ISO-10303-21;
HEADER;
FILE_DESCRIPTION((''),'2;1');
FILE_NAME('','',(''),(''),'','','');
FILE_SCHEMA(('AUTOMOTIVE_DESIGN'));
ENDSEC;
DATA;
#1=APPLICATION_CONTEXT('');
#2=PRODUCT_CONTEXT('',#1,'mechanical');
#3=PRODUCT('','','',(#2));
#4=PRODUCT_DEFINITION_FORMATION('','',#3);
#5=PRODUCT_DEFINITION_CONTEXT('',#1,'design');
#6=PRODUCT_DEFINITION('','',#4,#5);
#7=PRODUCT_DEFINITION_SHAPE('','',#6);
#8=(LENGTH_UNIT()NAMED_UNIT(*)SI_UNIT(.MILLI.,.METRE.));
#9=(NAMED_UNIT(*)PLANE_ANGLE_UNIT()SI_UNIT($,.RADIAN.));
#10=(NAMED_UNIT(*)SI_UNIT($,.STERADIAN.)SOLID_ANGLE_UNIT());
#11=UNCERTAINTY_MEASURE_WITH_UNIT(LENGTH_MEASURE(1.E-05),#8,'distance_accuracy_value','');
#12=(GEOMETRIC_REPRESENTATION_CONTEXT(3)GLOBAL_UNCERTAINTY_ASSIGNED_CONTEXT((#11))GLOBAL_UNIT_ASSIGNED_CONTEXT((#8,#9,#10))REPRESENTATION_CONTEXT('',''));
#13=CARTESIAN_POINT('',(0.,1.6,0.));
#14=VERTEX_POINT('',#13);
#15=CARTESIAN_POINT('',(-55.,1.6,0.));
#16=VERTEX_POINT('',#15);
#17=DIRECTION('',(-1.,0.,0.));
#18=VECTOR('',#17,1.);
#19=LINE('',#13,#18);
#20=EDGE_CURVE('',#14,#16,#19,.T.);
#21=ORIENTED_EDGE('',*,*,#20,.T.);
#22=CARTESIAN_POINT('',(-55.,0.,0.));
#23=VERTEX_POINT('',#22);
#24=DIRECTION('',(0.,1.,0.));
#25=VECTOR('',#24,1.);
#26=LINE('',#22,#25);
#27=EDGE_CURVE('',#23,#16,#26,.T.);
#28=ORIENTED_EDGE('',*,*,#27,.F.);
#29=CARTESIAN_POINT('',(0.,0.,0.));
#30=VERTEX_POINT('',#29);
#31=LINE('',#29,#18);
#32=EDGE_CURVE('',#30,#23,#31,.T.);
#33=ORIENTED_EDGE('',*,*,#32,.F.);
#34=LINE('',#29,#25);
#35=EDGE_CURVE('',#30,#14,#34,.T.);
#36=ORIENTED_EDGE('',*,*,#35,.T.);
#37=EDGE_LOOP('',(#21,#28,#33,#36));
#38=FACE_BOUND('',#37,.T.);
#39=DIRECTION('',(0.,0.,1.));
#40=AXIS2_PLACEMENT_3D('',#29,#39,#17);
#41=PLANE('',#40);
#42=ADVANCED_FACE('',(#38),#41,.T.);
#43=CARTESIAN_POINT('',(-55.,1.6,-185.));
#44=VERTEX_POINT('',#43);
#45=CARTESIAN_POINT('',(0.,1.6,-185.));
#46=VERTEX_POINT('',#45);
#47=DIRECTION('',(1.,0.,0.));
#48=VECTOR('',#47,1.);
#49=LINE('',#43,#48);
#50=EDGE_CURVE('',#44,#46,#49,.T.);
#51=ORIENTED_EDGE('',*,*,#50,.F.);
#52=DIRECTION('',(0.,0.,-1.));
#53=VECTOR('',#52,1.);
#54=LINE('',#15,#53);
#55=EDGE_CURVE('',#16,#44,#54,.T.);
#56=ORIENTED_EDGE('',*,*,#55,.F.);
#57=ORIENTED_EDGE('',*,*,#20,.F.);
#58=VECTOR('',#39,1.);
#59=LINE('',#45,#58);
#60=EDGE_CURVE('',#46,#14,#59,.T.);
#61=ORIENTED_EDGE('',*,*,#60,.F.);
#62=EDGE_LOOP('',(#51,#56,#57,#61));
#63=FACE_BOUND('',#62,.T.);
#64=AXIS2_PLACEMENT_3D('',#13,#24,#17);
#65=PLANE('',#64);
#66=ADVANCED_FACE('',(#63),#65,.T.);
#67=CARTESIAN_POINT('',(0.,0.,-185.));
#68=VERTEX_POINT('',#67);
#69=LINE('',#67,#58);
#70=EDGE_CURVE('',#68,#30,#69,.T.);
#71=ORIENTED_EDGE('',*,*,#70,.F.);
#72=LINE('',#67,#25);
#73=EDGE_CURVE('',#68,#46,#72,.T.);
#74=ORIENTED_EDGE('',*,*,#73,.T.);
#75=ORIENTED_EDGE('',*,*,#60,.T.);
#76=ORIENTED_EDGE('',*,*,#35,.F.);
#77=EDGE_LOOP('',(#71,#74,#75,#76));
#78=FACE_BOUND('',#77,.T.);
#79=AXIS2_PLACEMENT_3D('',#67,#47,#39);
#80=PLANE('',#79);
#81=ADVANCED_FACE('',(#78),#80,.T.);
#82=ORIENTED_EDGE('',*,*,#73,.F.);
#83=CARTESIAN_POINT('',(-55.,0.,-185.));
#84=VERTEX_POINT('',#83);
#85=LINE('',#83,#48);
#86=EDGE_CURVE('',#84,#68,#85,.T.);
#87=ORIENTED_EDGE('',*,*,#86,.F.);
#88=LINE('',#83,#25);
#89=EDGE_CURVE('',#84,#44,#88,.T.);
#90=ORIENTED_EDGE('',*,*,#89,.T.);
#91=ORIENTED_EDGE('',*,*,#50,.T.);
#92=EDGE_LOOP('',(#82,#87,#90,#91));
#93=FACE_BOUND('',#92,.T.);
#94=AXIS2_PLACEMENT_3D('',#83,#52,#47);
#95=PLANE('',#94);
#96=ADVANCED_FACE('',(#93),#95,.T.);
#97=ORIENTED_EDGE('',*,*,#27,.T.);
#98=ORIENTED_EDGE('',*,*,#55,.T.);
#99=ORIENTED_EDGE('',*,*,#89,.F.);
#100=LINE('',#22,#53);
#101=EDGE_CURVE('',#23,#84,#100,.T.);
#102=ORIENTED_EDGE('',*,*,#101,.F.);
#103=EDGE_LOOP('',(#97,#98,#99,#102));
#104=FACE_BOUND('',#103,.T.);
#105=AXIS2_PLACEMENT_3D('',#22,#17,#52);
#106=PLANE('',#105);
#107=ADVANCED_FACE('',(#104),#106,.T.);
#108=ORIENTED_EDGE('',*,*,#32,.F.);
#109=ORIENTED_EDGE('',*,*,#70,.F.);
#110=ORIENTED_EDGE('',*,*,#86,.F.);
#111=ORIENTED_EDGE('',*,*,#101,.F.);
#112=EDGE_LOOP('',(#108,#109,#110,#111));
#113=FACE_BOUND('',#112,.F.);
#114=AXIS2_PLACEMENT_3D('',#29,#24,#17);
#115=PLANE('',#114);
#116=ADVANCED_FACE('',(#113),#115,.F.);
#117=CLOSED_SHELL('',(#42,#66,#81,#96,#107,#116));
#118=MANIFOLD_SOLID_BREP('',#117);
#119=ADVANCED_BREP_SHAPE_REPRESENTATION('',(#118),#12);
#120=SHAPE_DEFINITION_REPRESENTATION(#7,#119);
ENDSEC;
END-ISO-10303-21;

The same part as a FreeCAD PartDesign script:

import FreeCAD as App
import Part
import Sketcher

V = App.Vector
Q = App.Units.Quantity

doc = App.newDocument("Part")
body = doc.addObject("PartDesign::Body", "Body")

sketch1 = body.newObject("Sketcher::SketchObject", "Sketch")
sketch1.AttachmentSupport = (doc.getObject("XZ_Plane"), [""])
sketch1.MapMode = "FlatFace"
sketch1.addGeometry(Part.LineSegment(V(-55, 0, 0), V(0, 0, 0)), False)
sketch1.addGeometry(Part.LineSegment(V(0, 0, 0), V(0, -185, 0)), False)
sketch1.addGeometry(Part.LineSegment(V(0, -185, 0), V(-55, -185, 0)), False)
sketch1.addGeometry(Part.LineSegment(V(-55, -185, 0), V(-55, 0, 0)), False)
sketch1.addConstraint(Sketcher.Constraint("Coincident", 0, 2, 1, 1))
sketch1.addConstraint(Sketcher.Constraint("Coincident", 1, 2, 2, 1))
sketch1.addConstraint(Sketcher.Constraint("Coincident", 2, 2, 3, 1))
sketch1.addConstraint(Sketcher.Constraint("Coincident", 3, 2, 0, 1))
sketch1.addConstraint(Sketcher.Constraint("Horizontal", 0))
sketch1.addConstraint(Sketcher.Constraint("Vertical", 1))
sketch1.addConstraint(Sketcher.Constraint("Horizontal", 2))
sketch1.addConstraint(Sketcher.Constraint("Vertical", 3))
sketch1.addConstraint(Sketcher.Constraint("Coincident", 0, 2, -1, 1))
sketch1.addConstraint(Sketcher.Constraint("DistanceX", 0, 1, 0, 2, Q("55 mm")))
sketch1.addConstraint(Sketcher.Constraint("DistanceY", 1, 2, 1, 1, Q("185 mm")))
pad1 = body.newObject("PartDesign::Pad", "Pad")
pad1.Profile = sketch1
pad1.Length = 1.6
pad1.Reversed = True

doc.recompute()
